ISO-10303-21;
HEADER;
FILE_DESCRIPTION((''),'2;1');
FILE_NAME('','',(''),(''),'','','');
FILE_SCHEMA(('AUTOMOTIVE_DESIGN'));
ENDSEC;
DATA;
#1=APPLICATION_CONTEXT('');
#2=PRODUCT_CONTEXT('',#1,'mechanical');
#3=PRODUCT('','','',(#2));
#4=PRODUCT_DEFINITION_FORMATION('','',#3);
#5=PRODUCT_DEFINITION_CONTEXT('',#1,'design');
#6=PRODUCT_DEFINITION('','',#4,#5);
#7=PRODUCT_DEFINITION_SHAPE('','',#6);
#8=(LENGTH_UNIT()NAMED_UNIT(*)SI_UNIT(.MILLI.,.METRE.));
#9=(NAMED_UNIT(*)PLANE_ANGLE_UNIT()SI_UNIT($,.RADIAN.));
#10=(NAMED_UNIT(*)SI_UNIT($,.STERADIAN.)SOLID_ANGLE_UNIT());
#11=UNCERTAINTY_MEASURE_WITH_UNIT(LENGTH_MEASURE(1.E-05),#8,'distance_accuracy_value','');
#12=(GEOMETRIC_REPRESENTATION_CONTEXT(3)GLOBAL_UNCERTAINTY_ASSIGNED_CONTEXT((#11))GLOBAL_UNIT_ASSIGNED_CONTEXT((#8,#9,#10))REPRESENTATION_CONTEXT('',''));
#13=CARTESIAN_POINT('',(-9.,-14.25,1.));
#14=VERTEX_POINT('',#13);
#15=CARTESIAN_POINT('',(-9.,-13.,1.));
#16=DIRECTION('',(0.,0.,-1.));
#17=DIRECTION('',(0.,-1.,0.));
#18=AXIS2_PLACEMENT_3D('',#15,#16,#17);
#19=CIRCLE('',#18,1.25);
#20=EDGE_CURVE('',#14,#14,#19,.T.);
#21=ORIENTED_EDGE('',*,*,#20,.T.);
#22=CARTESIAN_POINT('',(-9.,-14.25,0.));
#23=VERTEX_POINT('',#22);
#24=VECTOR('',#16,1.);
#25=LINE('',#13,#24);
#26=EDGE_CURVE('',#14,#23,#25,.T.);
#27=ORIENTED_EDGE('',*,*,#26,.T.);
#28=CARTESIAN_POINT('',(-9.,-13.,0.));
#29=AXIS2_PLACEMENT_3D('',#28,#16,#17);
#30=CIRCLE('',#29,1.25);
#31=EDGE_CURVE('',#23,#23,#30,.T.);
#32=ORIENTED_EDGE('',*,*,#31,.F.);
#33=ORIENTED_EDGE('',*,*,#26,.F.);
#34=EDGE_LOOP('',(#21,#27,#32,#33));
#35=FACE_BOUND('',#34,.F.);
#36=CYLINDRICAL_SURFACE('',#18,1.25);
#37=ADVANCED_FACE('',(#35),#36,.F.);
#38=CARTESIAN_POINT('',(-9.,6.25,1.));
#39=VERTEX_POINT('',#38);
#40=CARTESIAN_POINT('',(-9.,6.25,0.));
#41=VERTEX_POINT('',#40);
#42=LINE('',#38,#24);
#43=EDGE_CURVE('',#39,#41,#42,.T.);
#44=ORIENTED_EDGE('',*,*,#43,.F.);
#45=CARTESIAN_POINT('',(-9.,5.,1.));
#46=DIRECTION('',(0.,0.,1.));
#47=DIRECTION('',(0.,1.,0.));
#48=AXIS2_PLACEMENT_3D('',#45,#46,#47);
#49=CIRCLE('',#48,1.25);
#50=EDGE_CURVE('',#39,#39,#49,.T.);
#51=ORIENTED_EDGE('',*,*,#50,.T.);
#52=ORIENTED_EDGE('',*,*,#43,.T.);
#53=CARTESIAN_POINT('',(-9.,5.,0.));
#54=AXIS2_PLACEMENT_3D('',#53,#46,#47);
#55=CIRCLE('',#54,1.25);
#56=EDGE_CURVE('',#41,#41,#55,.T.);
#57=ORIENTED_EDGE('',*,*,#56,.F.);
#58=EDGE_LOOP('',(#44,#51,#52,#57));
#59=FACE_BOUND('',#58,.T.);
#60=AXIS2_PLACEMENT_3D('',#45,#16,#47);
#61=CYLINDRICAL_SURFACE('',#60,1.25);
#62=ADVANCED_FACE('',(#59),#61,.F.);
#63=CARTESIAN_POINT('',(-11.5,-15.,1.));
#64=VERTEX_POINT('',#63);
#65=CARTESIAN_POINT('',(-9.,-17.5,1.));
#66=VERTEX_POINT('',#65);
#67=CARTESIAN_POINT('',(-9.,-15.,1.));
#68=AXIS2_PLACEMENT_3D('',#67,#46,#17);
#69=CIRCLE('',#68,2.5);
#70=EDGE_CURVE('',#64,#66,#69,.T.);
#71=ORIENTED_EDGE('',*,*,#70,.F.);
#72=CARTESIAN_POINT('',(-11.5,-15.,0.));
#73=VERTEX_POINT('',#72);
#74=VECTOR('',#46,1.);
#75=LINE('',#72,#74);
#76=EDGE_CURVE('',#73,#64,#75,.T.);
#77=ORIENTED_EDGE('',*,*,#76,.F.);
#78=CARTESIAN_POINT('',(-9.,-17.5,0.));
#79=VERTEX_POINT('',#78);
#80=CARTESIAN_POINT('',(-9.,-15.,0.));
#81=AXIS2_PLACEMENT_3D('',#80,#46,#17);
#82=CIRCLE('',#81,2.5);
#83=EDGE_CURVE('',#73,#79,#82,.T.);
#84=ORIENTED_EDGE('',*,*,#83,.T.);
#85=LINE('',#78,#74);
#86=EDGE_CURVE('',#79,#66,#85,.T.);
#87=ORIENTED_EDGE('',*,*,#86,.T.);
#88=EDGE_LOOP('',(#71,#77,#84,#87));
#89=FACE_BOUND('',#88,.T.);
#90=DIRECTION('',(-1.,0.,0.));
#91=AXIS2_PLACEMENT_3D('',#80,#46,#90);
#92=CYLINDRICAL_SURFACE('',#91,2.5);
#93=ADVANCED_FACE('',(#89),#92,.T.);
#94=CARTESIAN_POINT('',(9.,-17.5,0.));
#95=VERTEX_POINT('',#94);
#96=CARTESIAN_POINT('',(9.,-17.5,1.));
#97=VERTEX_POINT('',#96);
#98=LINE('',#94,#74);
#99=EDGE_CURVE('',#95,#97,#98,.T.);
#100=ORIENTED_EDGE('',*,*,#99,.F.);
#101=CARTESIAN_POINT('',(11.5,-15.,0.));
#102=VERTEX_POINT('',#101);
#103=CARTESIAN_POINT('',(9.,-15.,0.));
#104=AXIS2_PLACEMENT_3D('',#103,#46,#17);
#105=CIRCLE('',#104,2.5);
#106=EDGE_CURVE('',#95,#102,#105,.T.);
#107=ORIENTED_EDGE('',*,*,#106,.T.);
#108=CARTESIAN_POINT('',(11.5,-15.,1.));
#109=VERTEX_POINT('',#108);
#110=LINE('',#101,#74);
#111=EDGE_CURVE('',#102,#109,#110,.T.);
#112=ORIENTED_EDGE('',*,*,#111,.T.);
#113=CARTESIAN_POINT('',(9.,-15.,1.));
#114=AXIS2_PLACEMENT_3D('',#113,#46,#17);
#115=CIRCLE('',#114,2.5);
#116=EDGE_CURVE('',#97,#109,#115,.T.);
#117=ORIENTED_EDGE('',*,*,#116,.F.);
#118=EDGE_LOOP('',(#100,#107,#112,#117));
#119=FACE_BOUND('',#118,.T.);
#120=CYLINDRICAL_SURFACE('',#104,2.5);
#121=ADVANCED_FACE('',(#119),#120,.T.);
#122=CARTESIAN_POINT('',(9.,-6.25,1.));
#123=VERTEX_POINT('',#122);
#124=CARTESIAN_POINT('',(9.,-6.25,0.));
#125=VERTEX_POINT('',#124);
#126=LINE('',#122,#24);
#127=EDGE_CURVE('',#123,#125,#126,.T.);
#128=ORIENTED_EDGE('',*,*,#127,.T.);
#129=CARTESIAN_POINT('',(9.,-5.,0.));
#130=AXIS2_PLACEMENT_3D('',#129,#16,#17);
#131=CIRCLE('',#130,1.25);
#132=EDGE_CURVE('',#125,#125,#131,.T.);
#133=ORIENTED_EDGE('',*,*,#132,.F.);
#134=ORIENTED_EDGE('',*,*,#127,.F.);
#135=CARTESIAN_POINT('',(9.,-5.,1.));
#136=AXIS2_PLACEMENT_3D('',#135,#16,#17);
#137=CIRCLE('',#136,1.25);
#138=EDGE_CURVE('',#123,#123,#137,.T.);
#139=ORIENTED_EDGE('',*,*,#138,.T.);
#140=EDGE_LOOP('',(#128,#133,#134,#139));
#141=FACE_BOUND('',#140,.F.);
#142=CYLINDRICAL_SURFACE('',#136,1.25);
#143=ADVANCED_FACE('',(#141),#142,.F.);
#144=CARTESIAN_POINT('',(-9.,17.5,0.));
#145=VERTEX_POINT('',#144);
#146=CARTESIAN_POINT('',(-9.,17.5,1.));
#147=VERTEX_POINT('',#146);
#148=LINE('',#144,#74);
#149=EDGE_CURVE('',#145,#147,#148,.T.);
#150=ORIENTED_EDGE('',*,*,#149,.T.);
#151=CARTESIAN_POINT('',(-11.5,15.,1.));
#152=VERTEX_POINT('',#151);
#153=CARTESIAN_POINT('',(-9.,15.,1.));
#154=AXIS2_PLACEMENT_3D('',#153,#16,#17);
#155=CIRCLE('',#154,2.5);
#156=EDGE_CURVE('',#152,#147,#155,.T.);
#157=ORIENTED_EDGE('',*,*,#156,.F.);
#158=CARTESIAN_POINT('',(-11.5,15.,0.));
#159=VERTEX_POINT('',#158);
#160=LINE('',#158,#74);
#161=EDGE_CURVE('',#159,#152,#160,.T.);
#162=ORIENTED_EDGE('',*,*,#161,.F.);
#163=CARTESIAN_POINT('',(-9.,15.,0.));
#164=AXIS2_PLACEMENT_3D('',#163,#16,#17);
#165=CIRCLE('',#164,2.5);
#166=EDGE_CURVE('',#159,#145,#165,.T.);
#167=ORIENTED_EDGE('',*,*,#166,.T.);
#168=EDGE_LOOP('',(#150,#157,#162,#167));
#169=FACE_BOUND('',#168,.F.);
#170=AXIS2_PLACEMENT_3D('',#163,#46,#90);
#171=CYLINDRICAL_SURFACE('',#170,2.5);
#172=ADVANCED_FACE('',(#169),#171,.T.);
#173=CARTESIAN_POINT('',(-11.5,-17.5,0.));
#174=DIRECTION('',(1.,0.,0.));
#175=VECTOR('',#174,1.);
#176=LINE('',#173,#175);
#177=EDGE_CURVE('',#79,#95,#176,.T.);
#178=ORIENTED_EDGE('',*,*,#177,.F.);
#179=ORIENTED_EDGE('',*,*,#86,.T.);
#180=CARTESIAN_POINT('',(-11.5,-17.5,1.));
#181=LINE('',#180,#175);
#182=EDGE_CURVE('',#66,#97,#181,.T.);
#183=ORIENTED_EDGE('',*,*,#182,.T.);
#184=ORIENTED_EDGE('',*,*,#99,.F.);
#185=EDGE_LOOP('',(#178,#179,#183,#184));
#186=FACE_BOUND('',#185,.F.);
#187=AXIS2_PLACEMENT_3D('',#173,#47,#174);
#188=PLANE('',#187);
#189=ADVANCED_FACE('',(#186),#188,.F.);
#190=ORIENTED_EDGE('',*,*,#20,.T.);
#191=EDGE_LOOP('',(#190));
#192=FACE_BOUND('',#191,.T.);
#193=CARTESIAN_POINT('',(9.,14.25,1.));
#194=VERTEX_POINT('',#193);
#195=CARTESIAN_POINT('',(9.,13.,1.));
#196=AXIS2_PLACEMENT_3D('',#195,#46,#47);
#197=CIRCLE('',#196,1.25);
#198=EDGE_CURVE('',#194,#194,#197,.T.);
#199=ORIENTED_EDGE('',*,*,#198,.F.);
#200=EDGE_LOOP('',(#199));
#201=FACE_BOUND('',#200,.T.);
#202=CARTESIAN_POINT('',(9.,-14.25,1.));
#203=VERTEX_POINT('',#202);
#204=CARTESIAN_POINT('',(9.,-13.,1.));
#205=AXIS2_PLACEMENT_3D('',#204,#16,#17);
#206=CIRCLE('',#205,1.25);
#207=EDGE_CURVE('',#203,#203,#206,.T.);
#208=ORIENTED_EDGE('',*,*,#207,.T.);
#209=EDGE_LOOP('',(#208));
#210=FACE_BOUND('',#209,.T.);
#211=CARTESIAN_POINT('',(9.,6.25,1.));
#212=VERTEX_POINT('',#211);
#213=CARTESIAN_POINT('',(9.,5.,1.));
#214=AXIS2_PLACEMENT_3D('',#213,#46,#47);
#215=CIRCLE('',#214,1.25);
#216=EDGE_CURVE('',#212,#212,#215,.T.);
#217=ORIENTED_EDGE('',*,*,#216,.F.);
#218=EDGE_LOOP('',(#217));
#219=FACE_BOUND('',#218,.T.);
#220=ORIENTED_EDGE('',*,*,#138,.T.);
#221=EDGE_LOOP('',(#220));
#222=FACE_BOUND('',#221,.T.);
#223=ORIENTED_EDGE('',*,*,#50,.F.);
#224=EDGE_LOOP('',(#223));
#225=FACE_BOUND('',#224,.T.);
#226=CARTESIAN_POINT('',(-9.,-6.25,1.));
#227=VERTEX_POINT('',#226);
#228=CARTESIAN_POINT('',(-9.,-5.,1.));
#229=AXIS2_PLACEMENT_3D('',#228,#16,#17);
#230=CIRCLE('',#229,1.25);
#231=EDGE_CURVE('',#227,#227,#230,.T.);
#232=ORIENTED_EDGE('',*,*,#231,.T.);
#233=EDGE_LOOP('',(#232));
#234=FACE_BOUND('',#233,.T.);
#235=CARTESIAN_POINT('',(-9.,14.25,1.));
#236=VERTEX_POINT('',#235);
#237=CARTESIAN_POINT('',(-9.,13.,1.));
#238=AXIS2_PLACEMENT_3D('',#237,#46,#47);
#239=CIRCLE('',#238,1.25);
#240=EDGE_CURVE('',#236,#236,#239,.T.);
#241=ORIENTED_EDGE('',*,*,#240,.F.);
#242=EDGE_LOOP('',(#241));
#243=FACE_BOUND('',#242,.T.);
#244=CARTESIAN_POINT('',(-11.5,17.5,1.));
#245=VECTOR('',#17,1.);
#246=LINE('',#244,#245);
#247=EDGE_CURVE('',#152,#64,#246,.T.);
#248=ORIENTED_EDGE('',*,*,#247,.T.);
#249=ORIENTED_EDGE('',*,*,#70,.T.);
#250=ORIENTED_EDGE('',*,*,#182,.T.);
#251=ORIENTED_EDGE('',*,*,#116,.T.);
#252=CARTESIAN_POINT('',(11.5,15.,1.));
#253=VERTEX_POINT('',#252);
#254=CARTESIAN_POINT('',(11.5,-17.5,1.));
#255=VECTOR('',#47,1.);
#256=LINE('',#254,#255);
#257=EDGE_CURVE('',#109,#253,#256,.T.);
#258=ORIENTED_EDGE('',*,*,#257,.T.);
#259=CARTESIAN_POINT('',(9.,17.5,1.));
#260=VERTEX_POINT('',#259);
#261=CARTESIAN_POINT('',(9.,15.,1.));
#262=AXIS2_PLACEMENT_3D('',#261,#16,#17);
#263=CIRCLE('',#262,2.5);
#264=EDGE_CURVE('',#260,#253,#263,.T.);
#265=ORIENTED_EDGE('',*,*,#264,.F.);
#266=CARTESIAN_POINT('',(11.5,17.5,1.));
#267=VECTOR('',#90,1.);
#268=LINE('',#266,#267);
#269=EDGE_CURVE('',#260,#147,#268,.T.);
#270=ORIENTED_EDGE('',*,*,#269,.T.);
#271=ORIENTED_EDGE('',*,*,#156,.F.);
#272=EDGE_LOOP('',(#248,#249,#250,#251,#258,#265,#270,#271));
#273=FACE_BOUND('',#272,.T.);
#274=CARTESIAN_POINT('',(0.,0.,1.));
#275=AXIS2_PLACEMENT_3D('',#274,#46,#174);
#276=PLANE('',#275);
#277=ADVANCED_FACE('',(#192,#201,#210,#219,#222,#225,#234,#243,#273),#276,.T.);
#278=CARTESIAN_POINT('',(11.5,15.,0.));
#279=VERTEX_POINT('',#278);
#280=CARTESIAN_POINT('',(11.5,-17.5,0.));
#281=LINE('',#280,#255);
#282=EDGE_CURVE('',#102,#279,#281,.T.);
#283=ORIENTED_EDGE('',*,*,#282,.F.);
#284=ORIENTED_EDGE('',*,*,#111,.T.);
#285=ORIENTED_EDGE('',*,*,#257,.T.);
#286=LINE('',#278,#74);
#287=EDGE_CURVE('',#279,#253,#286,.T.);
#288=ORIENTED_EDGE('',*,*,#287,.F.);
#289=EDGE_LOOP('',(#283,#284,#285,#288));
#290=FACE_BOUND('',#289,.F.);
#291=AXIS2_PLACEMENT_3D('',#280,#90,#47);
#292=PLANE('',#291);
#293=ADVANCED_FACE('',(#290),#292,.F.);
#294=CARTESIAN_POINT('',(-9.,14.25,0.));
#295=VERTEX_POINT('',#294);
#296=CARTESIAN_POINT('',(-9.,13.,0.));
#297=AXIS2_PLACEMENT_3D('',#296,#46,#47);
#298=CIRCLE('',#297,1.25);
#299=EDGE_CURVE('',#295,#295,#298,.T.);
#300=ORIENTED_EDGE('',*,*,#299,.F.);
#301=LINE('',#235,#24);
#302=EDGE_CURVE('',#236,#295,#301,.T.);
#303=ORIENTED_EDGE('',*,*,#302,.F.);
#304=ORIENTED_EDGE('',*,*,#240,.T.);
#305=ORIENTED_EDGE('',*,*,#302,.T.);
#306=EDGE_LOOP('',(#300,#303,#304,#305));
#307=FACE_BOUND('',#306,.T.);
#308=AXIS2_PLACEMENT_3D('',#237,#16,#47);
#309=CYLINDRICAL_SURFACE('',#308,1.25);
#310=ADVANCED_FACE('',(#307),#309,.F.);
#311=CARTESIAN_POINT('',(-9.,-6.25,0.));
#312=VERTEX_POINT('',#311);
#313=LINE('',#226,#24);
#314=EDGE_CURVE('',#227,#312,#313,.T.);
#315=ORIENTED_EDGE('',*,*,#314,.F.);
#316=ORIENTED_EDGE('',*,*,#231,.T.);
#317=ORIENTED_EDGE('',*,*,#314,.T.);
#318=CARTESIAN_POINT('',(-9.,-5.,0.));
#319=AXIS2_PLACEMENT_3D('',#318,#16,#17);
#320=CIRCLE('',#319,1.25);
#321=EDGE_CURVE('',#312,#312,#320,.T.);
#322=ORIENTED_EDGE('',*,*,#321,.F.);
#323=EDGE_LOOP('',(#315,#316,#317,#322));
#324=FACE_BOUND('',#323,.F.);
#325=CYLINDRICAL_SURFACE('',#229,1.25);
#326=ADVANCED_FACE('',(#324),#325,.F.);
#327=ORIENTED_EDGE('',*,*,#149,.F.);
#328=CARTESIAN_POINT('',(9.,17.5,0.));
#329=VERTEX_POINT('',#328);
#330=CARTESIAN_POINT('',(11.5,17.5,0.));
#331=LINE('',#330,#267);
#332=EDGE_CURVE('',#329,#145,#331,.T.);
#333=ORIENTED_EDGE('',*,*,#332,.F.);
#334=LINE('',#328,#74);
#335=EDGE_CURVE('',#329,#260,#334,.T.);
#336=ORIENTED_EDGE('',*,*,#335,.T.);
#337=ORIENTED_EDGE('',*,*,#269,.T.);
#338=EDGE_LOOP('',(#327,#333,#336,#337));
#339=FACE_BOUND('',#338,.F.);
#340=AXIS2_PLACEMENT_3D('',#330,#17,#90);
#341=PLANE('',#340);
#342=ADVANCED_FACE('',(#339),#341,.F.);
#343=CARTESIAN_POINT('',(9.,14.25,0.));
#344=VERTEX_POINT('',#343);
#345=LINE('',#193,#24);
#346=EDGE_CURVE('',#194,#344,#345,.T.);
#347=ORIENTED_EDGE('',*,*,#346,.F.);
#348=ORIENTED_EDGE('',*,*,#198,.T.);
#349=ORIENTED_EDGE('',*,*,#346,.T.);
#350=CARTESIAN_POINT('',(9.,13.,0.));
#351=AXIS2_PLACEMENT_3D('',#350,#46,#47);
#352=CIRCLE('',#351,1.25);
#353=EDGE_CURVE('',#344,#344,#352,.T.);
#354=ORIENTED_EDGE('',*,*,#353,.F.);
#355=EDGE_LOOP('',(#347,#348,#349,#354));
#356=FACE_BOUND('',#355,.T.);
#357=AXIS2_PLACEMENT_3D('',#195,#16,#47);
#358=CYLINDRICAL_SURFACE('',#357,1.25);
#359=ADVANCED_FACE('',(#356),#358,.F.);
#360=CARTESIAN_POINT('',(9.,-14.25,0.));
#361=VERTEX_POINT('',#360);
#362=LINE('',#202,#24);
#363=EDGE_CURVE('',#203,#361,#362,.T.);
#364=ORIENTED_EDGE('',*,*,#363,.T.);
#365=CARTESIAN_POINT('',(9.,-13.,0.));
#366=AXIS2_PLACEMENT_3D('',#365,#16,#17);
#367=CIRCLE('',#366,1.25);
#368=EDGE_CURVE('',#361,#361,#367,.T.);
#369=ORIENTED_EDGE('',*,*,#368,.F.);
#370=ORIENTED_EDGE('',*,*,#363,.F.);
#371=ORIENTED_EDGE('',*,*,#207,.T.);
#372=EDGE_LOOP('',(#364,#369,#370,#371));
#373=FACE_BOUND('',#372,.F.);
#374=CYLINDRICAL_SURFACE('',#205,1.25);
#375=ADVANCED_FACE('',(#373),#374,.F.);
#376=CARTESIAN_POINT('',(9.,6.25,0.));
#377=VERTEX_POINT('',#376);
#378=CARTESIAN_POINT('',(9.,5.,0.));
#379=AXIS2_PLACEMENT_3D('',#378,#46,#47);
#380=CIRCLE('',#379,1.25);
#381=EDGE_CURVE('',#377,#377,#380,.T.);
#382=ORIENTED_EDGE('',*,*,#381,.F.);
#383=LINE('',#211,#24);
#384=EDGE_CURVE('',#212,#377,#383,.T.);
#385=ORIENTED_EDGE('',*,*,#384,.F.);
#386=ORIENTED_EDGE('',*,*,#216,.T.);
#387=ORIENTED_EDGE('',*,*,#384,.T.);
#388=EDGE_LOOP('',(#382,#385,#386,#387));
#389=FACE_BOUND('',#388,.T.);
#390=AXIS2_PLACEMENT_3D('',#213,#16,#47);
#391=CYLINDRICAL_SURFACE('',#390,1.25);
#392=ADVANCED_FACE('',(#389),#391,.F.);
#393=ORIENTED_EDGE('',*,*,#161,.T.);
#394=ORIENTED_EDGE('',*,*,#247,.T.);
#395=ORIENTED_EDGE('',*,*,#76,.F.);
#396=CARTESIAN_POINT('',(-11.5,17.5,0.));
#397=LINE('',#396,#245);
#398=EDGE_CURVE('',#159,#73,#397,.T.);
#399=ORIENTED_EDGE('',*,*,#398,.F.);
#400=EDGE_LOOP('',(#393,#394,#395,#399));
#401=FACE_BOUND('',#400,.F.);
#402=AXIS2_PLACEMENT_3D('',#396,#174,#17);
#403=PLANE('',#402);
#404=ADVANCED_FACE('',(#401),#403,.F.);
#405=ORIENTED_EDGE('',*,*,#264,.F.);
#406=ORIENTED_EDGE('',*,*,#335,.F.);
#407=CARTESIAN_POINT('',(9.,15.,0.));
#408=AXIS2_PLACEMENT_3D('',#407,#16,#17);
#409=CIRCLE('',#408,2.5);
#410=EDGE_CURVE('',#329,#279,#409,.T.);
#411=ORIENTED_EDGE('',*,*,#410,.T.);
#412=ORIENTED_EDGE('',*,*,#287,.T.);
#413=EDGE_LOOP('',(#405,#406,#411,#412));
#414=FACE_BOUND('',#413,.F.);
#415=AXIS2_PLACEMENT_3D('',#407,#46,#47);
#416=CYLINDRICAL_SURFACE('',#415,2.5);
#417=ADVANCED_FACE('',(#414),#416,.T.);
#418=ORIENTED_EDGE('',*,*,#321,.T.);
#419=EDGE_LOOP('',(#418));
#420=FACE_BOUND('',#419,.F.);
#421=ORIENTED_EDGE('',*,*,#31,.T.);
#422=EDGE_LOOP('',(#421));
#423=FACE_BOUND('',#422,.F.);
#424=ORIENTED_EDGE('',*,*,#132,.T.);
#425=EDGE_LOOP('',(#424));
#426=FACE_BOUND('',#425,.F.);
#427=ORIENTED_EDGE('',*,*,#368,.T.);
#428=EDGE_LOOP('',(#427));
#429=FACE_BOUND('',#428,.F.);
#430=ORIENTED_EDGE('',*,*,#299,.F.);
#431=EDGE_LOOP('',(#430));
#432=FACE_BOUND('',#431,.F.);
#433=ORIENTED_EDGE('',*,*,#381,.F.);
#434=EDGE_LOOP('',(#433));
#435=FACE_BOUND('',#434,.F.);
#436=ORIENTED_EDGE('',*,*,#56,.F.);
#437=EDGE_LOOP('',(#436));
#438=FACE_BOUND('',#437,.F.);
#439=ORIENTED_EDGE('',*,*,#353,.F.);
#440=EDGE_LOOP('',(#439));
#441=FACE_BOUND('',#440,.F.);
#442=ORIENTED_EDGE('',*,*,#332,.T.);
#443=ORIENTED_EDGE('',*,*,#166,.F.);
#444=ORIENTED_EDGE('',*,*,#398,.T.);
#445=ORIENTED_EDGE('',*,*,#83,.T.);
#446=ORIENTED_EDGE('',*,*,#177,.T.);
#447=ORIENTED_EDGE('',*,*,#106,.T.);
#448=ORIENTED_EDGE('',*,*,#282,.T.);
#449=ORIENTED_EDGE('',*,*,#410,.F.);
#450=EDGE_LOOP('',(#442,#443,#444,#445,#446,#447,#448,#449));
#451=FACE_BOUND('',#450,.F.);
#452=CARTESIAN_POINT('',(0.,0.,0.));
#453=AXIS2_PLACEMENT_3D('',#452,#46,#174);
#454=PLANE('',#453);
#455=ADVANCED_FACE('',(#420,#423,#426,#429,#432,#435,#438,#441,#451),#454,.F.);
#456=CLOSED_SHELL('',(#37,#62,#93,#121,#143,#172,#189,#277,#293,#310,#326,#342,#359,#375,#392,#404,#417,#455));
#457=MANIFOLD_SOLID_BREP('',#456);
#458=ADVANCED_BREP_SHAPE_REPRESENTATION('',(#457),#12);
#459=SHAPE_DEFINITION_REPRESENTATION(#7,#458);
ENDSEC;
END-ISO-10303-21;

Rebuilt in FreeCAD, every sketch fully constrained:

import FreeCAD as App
import Part
import Sketcher
Q = App.Units.Quantity


def edges_at(feature, points):
    """Names of the edges that pass closest to the given points."""
    edges = feature.Shape.Edges
    near = lambda p: min(range(len(edges)), key=lambda i: edges[i].distToShape(Part.Vertex(*p))[0])
    return sorted({f"Edge{near(p) + 1}" for p in points})

doc = App.newDocument("Part")
params = doc.addObject("Spreadsheet::Sheet", "Params")
for row, (alias, value) in enumerate([
    ("sketch1_width", "23 mm"),
    ("sketch1_height", "35 mm"),
    ("pad1_length", "1 mm"),
    ("sketch2_diameter", "2.5 mm"),
    ("hole_diameter", "2.5 mm"),
    ("hole_depth", "1 mm"),
    ("fillet_radius", "2.5 mm"),
], start=1):
    params.set(f"A{row}", alias)
    params.set(f"B{row}", "=" + value)
    params.setAlias(f"B{row}", alias)

body = doc.addObject("PartDesign::Body", "Body")

# Sketch on XY plane
sketch1 = body.newObject("Sketcher::SketchObject", "Sketch")
sketch1.AttachmentSupport = (doc.getObject("XY_Plane"), [""])
sketch1.MapMode = "FlatFace"
sketch1.addGeometry([
    Part.LineSegment(App.Vector(-12, 18, 0), App.Vector(-12, -18, 0)),
    Part.LineSegment(App.Vector(-12, -18, 0), App.Vector(12, -18, 0)),
    Part.LineSegment(App.Vector(12, -18, 0), App.Vector(12, 18, 0)),
    Part.LineSegment(App.Vector(12, 18, 0), App.Vector(-12, 18, 0)),
], False)
sketch1.addConstraint([
    Sketcher.Constraint("Coincident", 0, 2, 1, 1),
    Sketcher.Constraint("Coincident", 1, 2, 2, 1),
    Sketcher.Constraint("Coincident", 2, 2, 3, 1),
    Sketcher.Constraint("Coincident", 3, 2, 0, 1),
    Sketcher.Constraint("Vertical", 0),
    Sketcher.Constraint("Horizontal", 1),
    Sketcher.Constraint("Vertical", 2),
    Sketcher.Constraint("Horizontal", 3),
    Sketcher.Constraint("Symmetric", 0, 2, 2, 2, -1, 1),
    Sketcher.Constraint("DistanceX", 1, 1, 1, 2, Q("23 mm")),
    Sketcher.Constraint("DistanceY", 0, 2, 0, 1, Q("35 mm")),
])
sketch1.setExpression("Constraints[9]", "Params.sketch1_width")
sketch1.setExpression("Constraints[10]", "Params.sketch1_height")
pad1 = body.newObject("PartDesign::Pad", "Pad")
pad1.Profile = sketch1
pad1.setExpression("Length", "Params.pad1_length")

# Sketch on XY plane
sketch2 = body.newObject("Sketcher::SketchObject", "Sketch001")
sketch2.AttachmentSupport = (doc.getObject("XY_Plane"), [""])
sketch2.MapMode = "FlatFace"
sketch2.AttachmentOffset = App.Placement(App.Vector(0, 0, 1), App.Rotation())
sketch2.addGeometry([
    Part.Circle(App.Vector(-9, -13, 0), App.Vector(0, 0, 1), 1.2),
    Part.Circle(App.Vector(9, -13, 0), App.Vector(0, 0, 1), 1.2),
    Part.Circle(App.Vector(-9, -5, 0), App.Vector(0, 0, 1), 1.2),
    Part.Circle(App.Vector(9, -5, 0), App.Vector(0, 0, 1), 1.2),
], False)
sketch2.addConstraint([
    Sketcher.Constraint("Equal", 0, 1),
    Sketcher.Constraint("Equal", 1, 2),
    Sketcher.Constraint("Equal", 2, 3),
    Sketcher.Constraint("Symmetric", 0, 3, 1, 3, -2),
    Sketcher.Constraint("Symmetric", 2, 3, 3, 3, -2),
    Sketcher.Constraint("Vertical", 0, 3, 2, 3),
    Sketcher.Constraint("Diameter", 0, Q("2.5 mm")),
    Sketcher.Constraint("DistanceX", 0, 3, -1, 1, Q("9 mm")),
    Sketcher.Constraint("DistanceY", 0, 3, -1, 1, Q("13 mm")),
    Sketcher.Constraint("DistanceY", 2, 3, -1, 1, Q("5 mm")),
])
sketch2.setExpression("Constraints[6]", "Params.sketch2_diameter")
doc.recompute()
hole = body.newObject("PartDesign::Hole", "Hole")
hole.Profile = sketch2
hole.ThreadType = "None"
hole.setExpression("Diameter", "Params.hole_diameter")
hole.DepthType = "Dimension"
hole.setExpression("Depth", "Params.hole_depth")
hole.DrillPoint = "Flat"
doc.recompute()

fillet = body.newObject("PartDesign::Fillet", "Fillet")
fillet.Base = (hole, edges_at(hole, [
    (11.5, 17.5, 0.5),
    (11.5, -17.5, 0.5),
    (-11.5, -17.5, 0.5),
    (-11.5, 17.5, 0.5),
]))
fillet.setExpression("Radius", "Params.fillet_radius")
doc.recompute()

mirrored = body.newObject("PartDesign::Mirrored", "Mirrored")
mirrored.Originals = [hole]
mirrored.MirrorPlane = (doc.getObject("XZ_Plane"), [""])
body.Tip = mirrored

doc.recompute()
